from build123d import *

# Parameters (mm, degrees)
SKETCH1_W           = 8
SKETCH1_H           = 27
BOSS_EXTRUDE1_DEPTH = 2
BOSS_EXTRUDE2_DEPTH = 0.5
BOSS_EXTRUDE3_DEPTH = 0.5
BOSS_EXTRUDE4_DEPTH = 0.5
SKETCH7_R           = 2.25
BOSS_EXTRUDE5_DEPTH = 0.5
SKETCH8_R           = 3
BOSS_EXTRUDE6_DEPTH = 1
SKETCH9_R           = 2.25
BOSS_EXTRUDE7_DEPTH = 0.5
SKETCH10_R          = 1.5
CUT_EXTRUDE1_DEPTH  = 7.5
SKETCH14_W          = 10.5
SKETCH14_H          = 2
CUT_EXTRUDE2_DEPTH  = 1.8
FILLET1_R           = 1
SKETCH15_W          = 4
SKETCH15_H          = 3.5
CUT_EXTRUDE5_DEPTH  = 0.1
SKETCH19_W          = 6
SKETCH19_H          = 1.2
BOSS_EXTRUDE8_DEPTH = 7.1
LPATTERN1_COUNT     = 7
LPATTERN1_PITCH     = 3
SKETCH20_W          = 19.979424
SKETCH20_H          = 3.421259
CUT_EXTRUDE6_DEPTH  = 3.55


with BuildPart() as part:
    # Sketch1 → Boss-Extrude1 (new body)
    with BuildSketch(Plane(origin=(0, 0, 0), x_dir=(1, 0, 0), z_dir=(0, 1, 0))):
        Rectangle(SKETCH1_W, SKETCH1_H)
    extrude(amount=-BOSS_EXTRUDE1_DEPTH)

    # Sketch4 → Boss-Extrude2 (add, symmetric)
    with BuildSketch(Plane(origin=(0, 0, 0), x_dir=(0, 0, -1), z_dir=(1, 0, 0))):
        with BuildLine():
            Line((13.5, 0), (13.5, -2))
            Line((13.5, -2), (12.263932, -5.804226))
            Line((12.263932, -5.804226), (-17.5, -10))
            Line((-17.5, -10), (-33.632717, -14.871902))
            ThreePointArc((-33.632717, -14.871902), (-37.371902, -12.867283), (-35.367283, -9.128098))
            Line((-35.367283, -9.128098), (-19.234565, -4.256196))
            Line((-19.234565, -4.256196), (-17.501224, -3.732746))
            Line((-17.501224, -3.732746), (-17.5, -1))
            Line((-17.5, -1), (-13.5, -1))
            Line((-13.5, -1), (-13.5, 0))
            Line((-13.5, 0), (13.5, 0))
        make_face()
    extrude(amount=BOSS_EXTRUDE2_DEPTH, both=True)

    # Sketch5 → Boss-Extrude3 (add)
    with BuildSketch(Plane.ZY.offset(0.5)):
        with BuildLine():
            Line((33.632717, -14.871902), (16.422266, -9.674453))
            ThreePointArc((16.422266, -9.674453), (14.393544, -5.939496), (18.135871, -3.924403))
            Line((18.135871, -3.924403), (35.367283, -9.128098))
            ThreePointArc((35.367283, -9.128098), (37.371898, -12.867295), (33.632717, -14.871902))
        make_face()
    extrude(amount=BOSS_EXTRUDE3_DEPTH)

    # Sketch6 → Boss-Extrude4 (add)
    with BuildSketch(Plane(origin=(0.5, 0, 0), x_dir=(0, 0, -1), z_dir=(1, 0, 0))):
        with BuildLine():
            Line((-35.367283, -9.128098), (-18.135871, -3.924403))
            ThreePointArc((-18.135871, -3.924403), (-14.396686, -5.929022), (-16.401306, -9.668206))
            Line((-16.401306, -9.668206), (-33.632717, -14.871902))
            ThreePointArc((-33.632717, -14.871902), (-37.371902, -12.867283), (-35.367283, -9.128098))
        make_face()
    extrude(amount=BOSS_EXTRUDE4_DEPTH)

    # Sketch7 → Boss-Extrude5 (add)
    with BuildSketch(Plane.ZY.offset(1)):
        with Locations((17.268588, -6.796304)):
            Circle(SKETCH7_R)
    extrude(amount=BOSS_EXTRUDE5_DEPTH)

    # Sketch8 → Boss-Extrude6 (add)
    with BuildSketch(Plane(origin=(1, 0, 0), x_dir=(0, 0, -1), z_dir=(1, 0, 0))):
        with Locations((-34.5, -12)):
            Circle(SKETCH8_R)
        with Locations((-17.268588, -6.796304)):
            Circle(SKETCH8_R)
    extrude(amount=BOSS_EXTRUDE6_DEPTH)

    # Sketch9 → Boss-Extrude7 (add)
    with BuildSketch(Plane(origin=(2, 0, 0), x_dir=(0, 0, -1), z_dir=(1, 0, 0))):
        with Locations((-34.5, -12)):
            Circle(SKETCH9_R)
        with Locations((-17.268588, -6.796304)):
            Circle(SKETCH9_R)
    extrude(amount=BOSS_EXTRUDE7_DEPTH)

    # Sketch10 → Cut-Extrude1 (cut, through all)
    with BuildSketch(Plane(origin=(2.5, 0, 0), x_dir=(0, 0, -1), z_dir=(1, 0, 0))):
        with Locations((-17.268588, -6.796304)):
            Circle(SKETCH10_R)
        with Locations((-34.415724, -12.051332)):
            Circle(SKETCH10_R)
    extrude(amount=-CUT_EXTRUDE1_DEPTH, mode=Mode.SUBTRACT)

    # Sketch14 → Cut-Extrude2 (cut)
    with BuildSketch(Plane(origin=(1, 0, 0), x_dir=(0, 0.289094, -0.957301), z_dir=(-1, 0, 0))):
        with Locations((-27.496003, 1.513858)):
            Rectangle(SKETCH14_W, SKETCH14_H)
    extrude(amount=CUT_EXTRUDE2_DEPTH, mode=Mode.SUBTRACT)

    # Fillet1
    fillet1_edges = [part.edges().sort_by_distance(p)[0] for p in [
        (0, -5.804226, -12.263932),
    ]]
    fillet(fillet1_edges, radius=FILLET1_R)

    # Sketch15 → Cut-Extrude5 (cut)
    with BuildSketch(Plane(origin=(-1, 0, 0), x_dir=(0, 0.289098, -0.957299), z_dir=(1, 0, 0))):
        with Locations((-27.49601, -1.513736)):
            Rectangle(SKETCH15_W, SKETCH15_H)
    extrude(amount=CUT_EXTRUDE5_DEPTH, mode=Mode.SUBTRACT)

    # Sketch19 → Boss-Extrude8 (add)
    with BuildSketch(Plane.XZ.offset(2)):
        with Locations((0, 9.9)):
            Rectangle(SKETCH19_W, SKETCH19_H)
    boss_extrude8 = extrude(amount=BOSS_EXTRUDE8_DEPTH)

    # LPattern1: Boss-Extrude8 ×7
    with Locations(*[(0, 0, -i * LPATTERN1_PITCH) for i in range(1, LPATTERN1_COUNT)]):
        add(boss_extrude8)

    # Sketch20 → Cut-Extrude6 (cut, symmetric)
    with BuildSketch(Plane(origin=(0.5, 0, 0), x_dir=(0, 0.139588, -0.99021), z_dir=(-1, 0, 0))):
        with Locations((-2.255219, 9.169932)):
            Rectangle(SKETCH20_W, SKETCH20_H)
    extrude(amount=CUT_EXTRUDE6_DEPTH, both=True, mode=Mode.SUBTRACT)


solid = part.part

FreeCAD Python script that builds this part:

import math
import FreeCAD as App
import Part
import Sketcher
Q = App.Units.Quantity


def edges_at(feature, points):
    """Names of the edges that pass closest to the given points."""
    edges = feature.Shape.Edges
    near = lambda p: min(range(len(edges)), key=lambda i: edges[i].distToShape(Part.Vertex(*p))[0])
    return sorted({f"Edge{near(p) + 1}" for p in points})


def add_polygon(sketch, points):
    """Adds a closed chain of lines whose ends are joined by coincident constraints."""
    first, n = sketch.GeometryCount, len(points)
    for a, b in zip(points, points[1:] + points[:1]):
        sketch.addGeometry(Part.LineSegment(App.Vector(*a, 0), App.Vector(*b, 0)), False)
    for i in range(n):
        sketch.addConstraint(Sketcher.Constraint("Coincident", first + i, 2, first + (i + 1) % n, 1))

doc = App.newDocument("Part")
body = doc.addObject("PartDesign::Body", "Body")

sketch1 = doc.addObject("Sketcher::SketchObject", "Sketch")
body.addObject(sketch1)
sketch1.AttachmentSupport = (doc.XZ_Plane, [""])
sketch1.MapMode = "FlatFace"
add_polygon(sketch1, [(-4, -13.5), (-4, 13.5), (4, 13.5), (4, -13.5)])
sketch1.addConstraint([
    Sketcher.Constraint("Vertical", 0),
    Sketcher.Constraint("Horizontal", 1),
    Sketcher.Constraint("Vertical", 2),
    Sketcher.Constraint("Horizontal", 3),
    Sketcher.Constraint("Symmetric", 0, 2, 2, 2, -1, 1),
    Sketcher.Constraint("DistanceX", 1, 1, 1, 2, 8.0),
    Sketcher.Constraint("DistanceY", 0, 1, 0, 2, 27.0),
])
pad1 = doc.addObject("PartDesign::Pad", "Pad")
body.addObject(pad1)
pad1.Profile = sketch1
pad1.Length = 2

sketch2 = doc.addObject("Sketcher::SketchObject", "Sketch001")
body.addObject(sketch2)
sketch2.AttachmentSupport = (doc.YZ_Plane, [""])
sketch2.MapMode = "FlatFace"
sketch2.addGeometry([
    Part.LineSegment(App.Vector(-2, -13.5, 0), App.Vector(0, -13.5, 0)),
    Part.LineSegment(App.Vector(0, -13.5, 0), App.Vector(0, 13.5, 0)),
    Part.LineSegment(App.Vector(0, 13.5, 0), App.Vector(-1, 13.5, 0)),
    Part.LineSegment(App.Vector(-1, 13.5, 0), App.Vector(-1, 17.5, 0)),
    Part.LineSegment(App.Vector(-1, 17.5, 0), App.Vector(-3.732746, 17.501224, 0)),
    Part.LineSegment(App.Vector(-3.732746, 17.501224, 0), App.Vector(-4.256196, 19.234565, 0)),
    Part.LineSegment(App.Vector(-4.256196, 19.234565, 0), App.Vector(-9.128098, 35.367283, 0)),
    Part.ArcOfCircle(Part.Circle(App.Vector(-12, 34.5, 0), App.Vector(0, 0, 1), 3), math.radians(16.803742), math.radians(196.803742)),
    Part.LineSegment(App.Vector(-14.871902, 33.632717, 0), App.Vector(-10, 17.5, 0)),
    Part.LineSegment(App.Vector(-10, 17.5, 0), App.Vector(-5.804226, -12.263932, 0)),
    Part.LineSegment(App.Vector(-5.804226, -12.263932, 0), App.Vector(-2, -13.5, 0)),
], False)
sketch2.addConstraint([
    Sketcher.Constraint("Coincident", 0, 2, 1, 1),
    Sketcher.Constraint("Coincident", 1, 2, 2, 1),
    Sketcher.Constraint("Coincident", 2, 2, 3, 1),
    Sketcher.Constraint("Coincident", 3, 2, 4, 1),
    Sketcher.Constraint("Coincident", 4, 2, 5, 1),
    Sketcher.Constraint("Coincident", 5, 2, 6, 1),
    Sketcher.Constraint("Tangent", 6, 2, 7, 1),
    Sketcher.Constraint("Tangent", 7, 2, 8, 1),
    Sketcher.Constraint("Coincident", 8, 2, 9, 1),
    Sketcher.Constraint("Coincident", 9, 2, 10, 1),
    Sketcher.Constraint("Coincident", 10, 2, 0, 1),
    Sketcher.Constraint("Horizontal", 0),
    Sketcher.Constraint("Vertical", 1),
    Sketcher.Constraint("Horizontal", 2),
    Sketcher.Constraint("Vertical", 3),
    Sketcher.Constraint("Symmetric", 0, 2, 1, 2, -1, 1),
    Sketcher.Constraint("Parallel", 5, 6),
    Sketcher.Constraint("Parallel", 6, 8),
    Sketcher.Constraint("Horizontal", 3, 2, 8, 2),
    Sketcher.Constraint("Equal", 6, 8),
    Sketcher.Constraint("Radius", 7, 3.0),
    Sketcher.Constraint("DistanceX", 0, 1, 0, 2, 2.0),
    Sketcher.Constraint("DistanceX", 2, 2, 2, 1, 1.0),
    Sketcher.Constraint("DistanceY", 1, 1, 1, 2, 27.0),
    Sketcher.Constraint("DistanceY", 3, 1, 3, 2, 4.0),
    Sketcher.Constraint("Angle", 10, Q("-18.000001 deg")),
    Sketcher.Constraint("Distance", 10, 4.0),
    Sketcher.Constraint("DistanceX", 7, 3, -1, 1, 12.0),
    Sketcher.Constraint("DistanceX", 8, 2, -1, 1, 10.0),
    Sketcher.Constraint("DistanceY", 0, 2, 7, 3, 48.0),
    Sketcher.Constraint("DistanceX", 5, 2, 4, 2, 0.52345),
])
pad2 = doc.addObject("PartDesign::Pad", "Pad001")
body.addObject(pad2)
pad2.Profile = sketch2
pad2.Length = 1
pad2.Midplane = True

sketch3 = doc.addObject("Sketcher::SketchObject", "Sketch002")
body.addObject(sketch3)
sketch3.AttachmentSupport = (doc.YZ_Plane, [""])
sketch3.MapMode = "FlatFace"
sketch3.AttachmentOffset = App.Placement(App.Vector(0, 0, -0.5), App.Rotation())
sketch3.addGeometry([
    Part.LineSegment(App.Vector(-9.674453, 16.422266, 0), App.Vector(-14.871902, 33.632717, 0)),
    Part.ArcOfCircle(Part.Circle(App.Vector(-12, 34.5, 0), App.Vector(0, 0, 1), 3), math.radians(16.803749), math.radians(196.803735)),
    Part.LineSegment(App.Vector(-9.128098, 35.367283, 0), App.Vector(-3.924403, 18.135871, 0)),
    Part.ArcOfCircle(Part.Circle(App.Vector(-6.796305, 17.268588, 0), App.Vector(0, 0, 1), 3), math.radians(-163.613982), math.radians(16.803745)),
], False)
sketch3.addConstraint([
    Sketcher.Constraint("Coincident", 0, 2, 1, 2),
    Sketcher.Constraint("Tangent", 1, 1, 2, 1),
    Sketcher.Constraint("Tangent", 2, 2, 3, 2),
    Sketcher.Constraint("Coincident", 3, 1, 0, 1),
    Sketcher.Constraint("Equal", 1, 3),
    Sketcher.Constraint("Radius", 1, 3.0),
    Sketcher.Constraint("Distance", 2, 18.0),
    Sketcher.Constraint("DistanceX", 1, 3, -1, 1, 12.0),
    Sketcher.Constraint("DistanceY", -1, 1, 1, 3, 34.5),
    Sketcher.Constraint("DistanceX", 1, 1, -1, 1, 9.128098),
    Sketcher.Constraint("DistanceX", 0, 2, 2, 2, 10.947499),
    Sketcher.Constraint("Distance", 0, 17.978128),
])
pad3 = doc.addObject("PartDesign::Pad", "Pad002")
body.addObject(pad3)
pad3.Profile = sketch3
pad3.Length = 0.5
pad3.Reversed = True

sketch4 = doc.addObject("Sketcher::SketchObject", "Sketch003")
body.addObject(sketch4)
sketch4.AttachmentSupport = (doc.YZ_Plane, [""])
sketch4.MapMode = "FlatFace"
sketch4.AttachmentOffset = App.Placement(App.Vector(0, 0, 0.5), App.Rotation())
sketch4.addGeometry([
    Part.LineSegment(App.Vector(-3.924403, 18.135871, 0), App.Vector(-9.128098, 35.367283, 0)),
    Part.ArcOfCircle(Part.Circle(App.Vector(-12, 34.5, 0), App.Vector(0, 0, 1), 3), math.radians(16.803742), math.radians(196.803742)),
    Part.LineSegment(App.Vector(-14.871902, 33.632717, 0), App.Vector(-9.668206, 16.401306, 0)),
    Part.ArcOfCircle(Part.Circle(App.Vector(-6.796304, 17.268588, 0), App.Vector(0, 0, 1), 3), math.radians(-163.196283), math.radians(16.803754)),
], False)
sketch4.addConstraint([
    Sketcher.Constraint("Tangent", 0, 2, 1, 1),
    Sketcher.Constraint("Tangent", 1, 2, 2, 1),
    Sketcher.Constraint("Tangent", 2, 2, 3, 1),
    Sketcher.Constraint("Tangent", 3, 2, 0, 1),
    Sketcher.Constraint("Equal", 1, 3),
    Sketcher.Constraint("Radius", 1, 3.0),
    Sketcher.Constraint("Distance", 0, 18.0),
    Sketcher.Constraint("DistanceX", 1, 3, -1, 1, 12.0),
    Sketcher.Constraint("DistanceY", -1, 1, 1, 3, 34.5),
    Sketcher.Constraint("DistanceX", 2, 2, 3, 3, 2.871902),
])
pad4 = doc.addObject("PartDesign::Pad", "Pad003")
body.addObject(pad4)
pad4.Profile = sketch4
pad4.Length = 0.5

sketch5 = doc.addObject("Sketcher::SketchObject", "Sketch004")
body.addObject(sketch5)
sketch5.AttachmentSupport = (doc.YZ_Plane, [""])
sketch5.MapMode = "FlatFace"
sketch5.AttachmentOffset = App.Placement(App.Vector(0, 0, -1), App.Rotation())
sketch5.addGeometry(Part.Circle(App.Vector(-6.796304, 17.268588, 0), App.Vector(0, 0, 1), 2.25), False)
sketch5.addConstraint([
    Sketcher.Constraint("Diameter", 0, 4.5),
    Sketcher.Constraint("DistanceY", -1, 1, 0, 3, 17.268588),
    Sketcher.Constraint("DistanceX", 0, 3, -1, 1, 6.796304),
])
pad5 = doc.addObject("PartDesign::Pad", "Pad004")
body.addObject(pad5)
pad5.Profile = sketch5
pad5.Length = 0.5
pad5.Reversed = True

sketch6 = doc.addObject("Sketcher::SketchObject", "Sketch005")
body.addObject(sketch6)
sketch6.AttachmentSupport = (doc.YZ_Plane, [""])
sketch6.MapMode = "FlatFace"
sketch6.AttachmentOffset = App.Placement(App.Vector(0, 0, 1), App.Rotation())
sketch6.addGeometry([
    Part.Circle(App.Vector(-12, 34.5, 0), App.Vector(0, 0, 1), 3),
    Part.Circle(App.Vector(-6.796304, 17.268588, 0), App.Vector(0, 0, 1), 3),
], False)
sketch6.addConstraint([
    Sketcher.Constraint("Equal", 0, 1),
    Sketcher.Constraint("Diameter", 0, 6.0),
    Sketcher.Constraint("DistanceX", 0, 3, -1, 1, 12.0),
    Sketcher.Constraint("DistanceY", -1, 1, 0, 3, 34.5),
    Sketcher.Constraint("DistanceY", -1, 1, 1, 3, 17.268588),
    Sketcher.Constraint("DistanceX", 1, 3, -1, 1, 6.796304),
])
pad6 = doc.addObject("PartDesign::Pad", "Pad005")
body.addObject(pad6)
pad6.Profile = sketch6
pad6.Length = 1

sketch7 = doc.addObject("Sketcher::SketchObject", "Sketch006")
body.addObject(sketch7)
sketch7.AttachmentSupport = (doc.YZ_Plane, [""])
sketch7.MapMode = "FlatFace"
sketch7.AttachmentOffset = App.Placement(App.Vector(0, 0, 2), App.Rotation())
sketch7.addGeometry([
    Part.Circle(App.Vector(-12, 34.5, 0), App.Vector(0, 0, 1), 2.25),
    Part.Circle(App.Vector(-6.796304, 17.268588, 0), App.Vector(0, 0, 1), 2.25),
], False)
sketch7.addConstraint([
    Sketcher.Constraint("Equal", 0, 1),
    Sketcher.Constraint("Diameter", 0, 4.5),
    Sketcher.Constraint("DistanceX", 0, 3, -1, 1, 12.0),
    Sketcher.Constraint("DistanceY", -1, 1, 0, 3, 34.5),
    Sketcher.Constraint("DistanceY", -1, 1, 1, 3, 17.268588),
    Sketcher.Constraint("DistanceX", 1, 3, -1, 1, 6.796304),
])
pad7 = doc.addObject("PartDesign::Pad", "Pad006")
body.addObject(pad7)
pad7.Profile = sketch7
pad7.Length = 0.5

sketch8 = doc.addObject("Sketcher::SketchObject", "Sketch007")
body.addObject(sketch8)
sketch8.AttachmentSupport = (doc.YZ_Plane, [""])
sketch8.MapMode = "FlatFace"
sketch8.AttachmentOffset = App.Placement(App.Vector(0, 0, 2.5), App.Rotation())
sketch8.addGeometry([
    Part.Circle(App.Vector(-6.796304, 17.268588, 0), App.Vector(0, 0, 1), 1.5),
    Part.Circle(App.Vector(-12.051332, 34.415724, 0), App.Vector(0, 0, 1), 1.5),
], False)
sketch8.addConstraint([
    Sketcher.Constraint("Equal", 0, 1),
    Sketcher.Constraint("Diameter", 0, 3.0),
    Sketcher.Constraint("DistanceY", -1, 1, 0, 3, 17.268588),
    Sketcher.Constraint("DistanceX", 1, 3, 0, 3, 5.255028),
    Sketcher.Constraint("DistanceX", 0, 3, -1, 1, 6.796304),
    Sketcher.Constraint("DistanceY", -1, 1, 1, 3, 34.415724),
])
pocket1 = doc.addObject("PartDesign::Pocket", "Pocket")
body.addObject(pocket1)
pocket1.Profile = sketch8
pocket1.Type = "ThroughAll"

sketch9 = doc.addObject("Sketcher::SketchObject", "Sketch008")
body.addObject(sketch9)
sketch9.AttachmentSupport = (doc.YZ_Plane, [""])
sketch9.MapMode = "FlatFace"
sketch9.AttachmentOffset = App.Placement(App.Vector(0, 0, 1), App.Rotation())
add_polygon(sketch9, [(-11.873189, 30.621032), (-9.958587, 31.19922), (-6.923101, 21.147562), (-8.837702, 20.569374)])
sketch9.addConstraint([
    Sketcher.Constraint("Perpendicular", 0, 1),
    Sketcher.Constraint("Perpendicular", 1, 2),
    Sketcher.Constraint("Perpendicular", 2, 3),
    Sketcher.Constraint("Distance", 0, 2.0),
    Sketcher.Constraint("Distance", 1, 10.5),
    Sketcher.Constraint("DistanceX", 1, 2, -1, 1, 6.923101),
    Sketcher.Constraint("DistanceX", 2, 2, 1, 2, 1.914601),
    Sketcher.Constraint("DistanceY", -1, 1, 0, 2, 31.19922),
])
pocket2 = doc.addObject("PartDesign::Pocket", "Pocket001")
body.addObject(pocket2)
pocket2.Profile = sketch9
pocket2.Length = 1.8
doc.recompute()

fillet = doc.addObject("PartDesign::Fillet", "Fillet")
body.addObject(fillet)
fillet.Base = (pocket2, edges_at(pocket2, [(0, -5.804, -12.264)]))
fillet.Radius = 1

sketch10 = doc.addObject("Sketcher::SketchObject", "Sketch009")
body.addObject(sketch10)
sketch10.AttachmentSupport = (doc.YZ_Plane, [""])
sketch10.MapMode = "FlatFace"
sketch10.AttachmentOffset = App.Placement(App.Vector(0, 0, -1), App.Rotation())
add_polygon(sketch10, [(-8.301066, 28.304818), (-11.651614, 27.292975), (-10.495222, 23.463777), (-7.144674, 24.47562)])
sketch10.addConstraint([
    Sketcher.Constraint("Perpendicular", 0, 1),
    Sketcher.Constraint("Perpendicular", 1, 2),
    Sketcher.Constraint("Perpendicular", 2, 3),
    Sketcher.Constraint("Distance", 1, 4.0),
    Sketcher.Constraint("Distance", 0, 3.5),
    Sketcher.Constraint("DistanceX", 1, 2, -1, 1, 10.495222),
    Sketcher.Constraint("DistanceY", -1, 1, 2, 2, 24.47562),
    Sketcher.Constraint("DistanceY", -1, 1, 3, 2, 28.304818),
])
pocket3 = doc.addObject("PartDesign::Pocket", "Pocket002")
body.addObject(pocket3)
pocket3.Profile = sketch10
pocket3.Length = 0.1
pocket3.Reversed = True

sketch11 = doc.addObject("Sketcher::SketchObject", "Sketch010")
body.addObject(sketch11)
sketch11.AttachmentSupport = (doc.XZ_Plane, [""])
sketch11.MapMode = "FlatFace"
sketch11.AttachmentOffset = App.Placement(App.Vector(0, 0, 2), App.Rotation())
add_polygon(sketch11, [(-3, 10.5), (-3, 9.3), (3, 9.3), (3, 10.5)])
sketch11.addConstraint([
    Sketcher.Constraint("Vertical", 0),
    Sketcher.Constraint("Horizontal", 1),
    Sketcher.Constraint("Vertical", 2),
    Sketcher.Constraint("Horizontal", 3),
    Sketcher.Constraint("DistanceX", 1, 1, 1, 2, 6.0),
    Sketcher.Constraint("DistanceY", 0, 2, 0, 1, 1.2),
    Sketcher.Constraint("DistanceX", 0, 2, -1, 1, 3.0),
    Sketcher.Constraint("DistanceY", -1, 1, 0, 2, 9.3),
])
pad8 = doc.addObject("PartDesign::Pad", "Pad007")
body.addObject(pad8)
pad8.Profile = sketch11
pad8.Length = 7.1
doc.recompute()

linearpattern = doc.addObject("PartDesign::LinearPattern", "LinearPattern")
body.addObject(linearpattern)
linearpattern.Originals = [pad8]
linearpattern.Direction = (doc.Z_Axis, [""])
linearpattern.Mode = "offset"
linearpattern.Offset = 3
linearpattern.Occurrences = 7
linearpattern.Reversed = True
body.Tip = linearpattern

sketch12 = doc.addObject("Sketcher::SketchObject", "Sketch011")
body.addObject(sketch12)
sketch12.AttachmentSupport = (doc.YZ_Plane, [""])
sketch12.MapMode = "FlatFace"
sketch12.AttachmentOffset = App.Placement(App.Vector(0, 0, 0.5), App.Rotation())
add_polygon(sketch12, [(-12.483282, 10.606254), (-9.095518, 11.08382), (-6.306631, -8.699999), (-9.694395, -9.177565)])
sketch12.addConstraint([
    Sketcher.Constraint("Perpendicular", 0, 1),
    Sketcher.Constraint("Perpendicular", 1, 2),
    Sketcher.Constraint("Perpendicular", 2, 3),
    Sketcher.Constraint("DistanceY", 1, 2, -1, 1, 8.699999),
    Sketcher.Constraint("Distance", 0, 3.421259),
    Sketcher.Constraint("DistanceX", 0, 2, -1, 1, 9.095518),
    Sketcher.Constraint("DistanceY", -1, 1, 0, 2, 11.08382),
    Sketcher.Constraint("DistanceX", 1, 2, -1, 1, 6.306631),
])
pocket4 = doc.addObject("PartDesign::Pocket", "Pocket003")
body.addObject(pocket4)
pocket4.Profile = sketch12
pocket4.Length = 7.1
pocket4.Midplane = True

doc.recompute()
